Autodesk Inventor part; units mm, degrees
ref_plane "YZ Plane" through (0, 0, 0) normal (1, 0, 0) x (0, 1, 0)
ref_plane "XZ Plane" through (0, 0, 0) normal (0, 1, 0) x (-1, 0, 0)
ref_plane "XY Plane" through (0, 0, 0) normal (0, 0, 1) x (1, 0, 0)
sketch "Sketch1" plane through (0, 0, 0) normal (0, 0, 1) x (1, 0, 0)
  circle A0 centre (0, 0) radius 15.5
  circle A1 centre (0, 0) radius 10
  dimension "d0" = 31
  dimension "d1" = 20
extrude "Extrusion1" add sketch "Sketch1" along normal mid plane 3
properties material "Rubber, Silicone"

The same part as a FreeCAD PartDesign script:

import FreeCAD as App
import Part
import Sketcher

doc = App.newDocument("Part")
body = doc.addObject("PartDesign::Body", "Body")

# Sketch on XY plane
sketch1 = body.newObject("Sketcher::SketchObject", "Sketch")
sketch1.AttachmentSupport = (doc.getObject("XY_Plane"), [""])
sketch1.MapMode = "FlatFace"
sketch1.addGeometry([
    Part.Circle(App.Vector(0, 0, 0), App.Vector(0, 0, 1), 16),
    Part.Circle(App.Vector(0, 0, 0), App.Vector(0, 0, 1), 10),
], False)
sketch1.addConstraint([
    Sketcher.Constraint("Coincident", 0, 3, -1, 1),
    Sketcher.Constraint("Coincident", 1, 3, -1, 1),
    Sketcher.Constraint("Diameter", 0, 31.0),
    Sketcher.Constraint("Diameter", 1, 20.0),
])
pad1 = body.newObject("PartDesign::Pad", "Pad")
pad1.Profile = sketch1
pad1.Length = 3
pad1.Midplane = True

doc.recompute()
